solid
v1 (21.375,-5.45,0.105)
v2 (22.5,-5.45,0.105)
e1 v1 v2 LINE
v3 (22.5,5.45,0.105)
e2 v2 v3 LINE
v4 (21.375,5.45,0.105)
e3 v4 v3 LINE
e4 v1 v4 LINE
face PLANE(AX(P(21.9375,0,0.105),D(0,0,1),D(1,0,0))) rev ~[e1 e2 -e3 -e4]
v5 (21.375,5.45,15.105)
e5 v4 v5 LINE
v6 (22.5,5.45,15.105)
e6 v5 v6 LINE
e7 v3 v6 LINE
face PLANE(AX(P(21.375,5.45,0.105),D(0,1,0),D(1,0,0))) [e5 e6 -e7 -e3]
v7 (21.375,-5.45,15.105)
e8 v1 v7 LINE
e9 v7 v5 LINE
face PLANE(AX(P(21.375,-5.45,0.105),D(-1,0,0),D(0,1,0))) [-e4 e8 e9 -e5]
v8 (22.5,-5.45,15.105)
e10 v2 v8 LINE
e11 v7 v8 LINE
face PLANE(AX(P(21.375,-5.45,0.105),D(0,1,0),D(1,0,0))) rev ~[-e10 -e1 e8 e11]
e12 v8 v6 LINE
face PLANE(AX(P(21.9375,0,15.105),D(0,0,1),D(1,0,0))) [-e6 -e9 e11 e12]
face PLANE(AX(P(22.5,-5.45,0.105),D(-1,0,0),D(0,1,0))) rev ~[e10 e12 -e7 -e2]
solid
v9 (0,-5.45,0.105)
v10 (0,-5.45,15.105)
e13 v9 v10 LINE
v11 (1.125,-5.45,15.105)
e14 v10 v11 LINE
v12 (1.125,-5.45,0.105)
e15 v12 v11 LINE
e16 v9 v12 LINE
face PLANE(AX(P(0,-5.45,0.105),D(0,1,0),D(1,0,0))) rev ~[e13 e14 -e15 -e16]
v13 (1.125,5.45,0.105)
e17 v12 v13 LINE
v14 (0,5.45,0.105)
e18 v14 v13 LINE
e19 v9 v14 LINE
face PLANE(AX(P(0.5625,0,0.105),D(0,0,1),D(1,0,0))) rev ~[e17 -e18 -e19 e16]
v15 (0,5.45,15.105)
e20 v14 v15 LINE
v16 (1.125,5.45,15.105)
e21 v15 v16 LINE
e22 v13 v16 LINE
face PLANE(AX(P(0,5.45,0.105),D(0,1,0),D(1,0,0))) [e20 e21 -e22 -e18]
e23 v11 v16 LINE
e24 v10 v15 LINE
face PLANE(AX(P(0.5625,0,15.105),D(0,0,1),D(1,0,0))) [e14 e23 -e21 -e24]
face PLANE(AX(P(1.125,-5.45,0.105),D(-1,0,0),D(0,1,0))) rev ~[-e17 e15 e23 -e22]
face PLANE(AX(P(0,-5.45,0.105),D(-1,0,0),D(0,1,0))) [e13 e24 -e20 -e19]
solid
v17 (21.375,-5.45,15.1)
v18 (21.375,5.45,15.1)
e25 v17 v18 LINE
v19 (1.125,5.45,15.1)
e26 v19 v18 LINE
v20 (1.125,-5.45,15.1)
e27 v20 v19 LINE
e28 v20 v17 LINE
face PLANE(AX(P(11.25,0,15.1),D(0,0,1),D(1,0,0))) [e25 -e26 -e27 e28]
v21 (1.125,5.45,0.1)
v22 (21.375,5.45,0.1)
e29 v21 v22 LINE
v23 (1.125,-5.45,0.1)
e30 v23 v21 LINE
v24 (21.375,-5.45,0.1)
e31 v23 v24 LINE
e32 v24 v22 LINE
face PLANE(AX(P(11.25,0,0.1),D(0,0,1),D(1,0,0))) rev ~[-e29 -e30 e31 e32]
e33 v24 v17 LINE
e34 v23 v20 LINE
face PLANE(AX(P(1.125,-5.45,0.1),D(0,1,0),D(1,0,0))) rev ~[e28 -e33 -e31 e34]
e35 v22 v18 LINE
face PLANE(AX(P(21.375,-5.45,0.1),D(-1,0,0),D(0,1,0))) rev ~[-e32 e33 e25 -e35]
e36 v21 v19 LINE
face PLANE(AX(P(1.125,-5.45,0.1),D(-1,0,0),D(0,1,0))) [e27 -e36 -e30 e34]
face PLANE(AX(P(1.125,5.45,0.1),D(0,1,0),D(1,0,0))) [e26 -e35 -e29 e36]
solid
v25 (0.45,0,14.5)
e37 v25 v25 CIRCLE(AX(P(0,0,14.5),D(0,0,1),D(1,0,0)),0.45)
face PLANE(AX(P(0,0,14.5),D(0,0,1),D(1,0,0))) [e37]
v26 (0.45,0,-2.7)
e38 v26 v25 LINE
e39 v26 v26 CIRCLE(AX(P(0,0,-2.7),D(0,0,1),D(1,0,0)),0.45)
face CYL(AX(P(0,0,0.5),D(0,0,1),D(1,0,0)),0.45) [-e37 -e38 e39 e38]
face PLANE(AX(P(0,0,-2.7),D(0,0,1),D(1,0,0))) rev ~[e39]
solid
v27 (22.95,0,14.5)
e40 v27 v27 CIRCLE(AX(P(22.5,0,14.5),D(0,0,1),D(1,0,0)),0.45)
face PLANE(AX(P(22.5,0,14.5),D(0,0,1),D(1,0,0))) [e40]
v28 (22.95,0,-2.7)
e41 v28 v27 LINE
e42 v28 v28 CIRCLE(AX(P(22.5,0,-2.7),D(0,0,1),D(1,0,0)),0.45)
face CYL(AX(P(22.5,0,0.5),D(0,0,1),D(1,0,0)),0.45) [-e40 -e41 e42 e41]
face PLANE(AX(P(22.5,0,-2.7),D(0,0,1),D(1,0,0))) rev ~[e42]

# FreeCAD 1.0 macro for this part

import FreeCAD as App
import Part
import Sketcher

V = App.Vector
Q = App.Units.Quantity


def add_polygon(sketch, points):
    """Adds a closed chain of lines whose ends are joined by coincident constraints."""
    first, n = sketch.GeometryCount, len(points)
    for a, b in zip(points, points[1:] + points[:1]):
        sketch.addGeometry(Part.LineSegment(App.Vector(*a, 0), App.Vector(*b, 0)), False)
    for i in range(n):
        sketch.addConstraint(Sketcher.Constraint("Coincident", first + i, 2, first + (i + 1) % n, 1))

doc = App.newDocument("Part")
body = doc.addObject("PartDesign::Body", "Body")

sketch1 = body.newObject("Sketcher::SketchObject", "Sketch")
sketch1.AttachmentSupport = (doc.getObject("XY_Plane"), [""])
sketch1.MapMode = "FlatFace"
sketch1.AttachmentOffset = App.Placement(V(0, 0, 0.1), App.Rotation())
add_polygon(sketch1, [(1, 5), (1, -5), (21, -5), (21, 5)])
sketch1.addConstraint([
    Sketcher.Constraint("Vertical", 0),
    Sketcher.Constraint("Horizontal", 1),
    Sketcher.Constraint("Vertical", 2),
    Sketcher.Constraint("Horizontal", 3),
    Sketcher.Constraint("DistanceY", 0, 2, 0, 1, Q("10.9 mm")),
    Sketcher.Constraint("DistanceX", 1, 1, 1, 2, Q("20.25 mm")),
    Sketcher.Constraint("DistanceY", 0, 2, -1, 1, Q("5.45 mm")),
    Sketcher.Constraint("DistanceX", -1, 1, 0, 2, Q("1.125 mm")),
])
pad1 = body.newObject("PartDesign::Pad", "Pad")
pad1.Profile = sketch1
pad1.Length = 15
body2 = doc.addObject("PartDesign::Body", "Body001")
body2.AllowCompound = True

sketch2 = body2.newObject("Sketcher::SketchObject", "Sketch001")
sketch2.AttachmentSupport = (doc.getObject("XY_Plane001"), [""])
sketch2.MapMode = "FlatFace"
sketch2.AttachmentOffset = App.Placement(V(0, 0, 0.5), App.Rotation())
sketch2.addGeometry([
    Part.Circle(V(0, 0, 0), V(0, 0, 1), 0.45),
    Part.Circle(V(22.5, 0, 0), V(0, 0, 1), 0.45),
], False)
sketch2.addConstraint([
    Sketcher.Constraint("Coincident", 0, 3, -1, 1),
    Sketcher.Constraint("Equal", 0, 1),
    Sketcher.Constraint("PointOnObject", 1, 3, -1),
    Sketcher.Constraint("Diameter", 0, Q("0.9 mm")),
    Sketcher.Constraint("DistanceX", -1, 1, 1, 3, Q("22.5 mm")),
])
pad2 = body2.newObject("PartDesign::Pad", "Pad001")
pad2.Profile = sketch2
pad2.Type = "TwoLengths"
pad2.Length = 14
pad2.Length2 = 3.2
body3 = doc.addObject("PartDesign::Body", "Body002")
body3.AllowCompound = True

sketch3 = body3.newObject("Sketcher::SketchObject", "Sketch002")
sketch3.AttachmentSupport = (doc.getObject("XY_Plane002"), [""])
sketch3.MapMode = "FlatFace"
sketch3.AttachmentOffset = App.Placement(V(0, 0, 0.105), App.Rotation())
add_polygon(sketch3, [(0, 5.5), (0, -5.5), (1.1, -5.5), (1.1, 5.5)])
add_polygon(sketch3, [(21.4, 5.5), (21.4, -5.5), (22.5, -5.5), (22.5, 5.5)])
sketch3.addConstraint([
    Sketcher.Constraint("Vertical", 0),
    Sketcher.Constraint("Horizontal", 1),
    Sketcher.Constraint("Vertical", 2),
    Sketcher.Constraint("Horizontal", 3),
    Sketcher.Constraint("Vertical", 4),
    Sketcher.Constraint("Horizontal", 5),
    Sketcher.Constraint("Vertical", 6),
    Sketcher.Constraint("Horizontal", 7),
    Sketcher.Constraint("Symmetric", 0, 2, 3, 2, -1, 1),
    Sketcher.Constraint("Horizontal", 1, 2, 4, 2),
    Sketcher.Constraint("Horizontal", 3, 2, 6, 2),
    Sketcher.Constraint("Equal", 3, 5),
    Sketcher.Constraint("DistanceY", 0, 2, 0, 1, Q("10.9 mm")),
    Sketcher.Constraint("DistanceX", -1, 1, 5, 2, Q("22.5 mm")),
    Sketcher.Constraint("DistanceX", 1, 1, 1, 2, Q("1.125 mm")),
])
pad3 = body3.newObject("PartDesign::Pad", "Pad002")
pad3.Profile = sketch3
pad3.Length = 15

doc.recompute()
